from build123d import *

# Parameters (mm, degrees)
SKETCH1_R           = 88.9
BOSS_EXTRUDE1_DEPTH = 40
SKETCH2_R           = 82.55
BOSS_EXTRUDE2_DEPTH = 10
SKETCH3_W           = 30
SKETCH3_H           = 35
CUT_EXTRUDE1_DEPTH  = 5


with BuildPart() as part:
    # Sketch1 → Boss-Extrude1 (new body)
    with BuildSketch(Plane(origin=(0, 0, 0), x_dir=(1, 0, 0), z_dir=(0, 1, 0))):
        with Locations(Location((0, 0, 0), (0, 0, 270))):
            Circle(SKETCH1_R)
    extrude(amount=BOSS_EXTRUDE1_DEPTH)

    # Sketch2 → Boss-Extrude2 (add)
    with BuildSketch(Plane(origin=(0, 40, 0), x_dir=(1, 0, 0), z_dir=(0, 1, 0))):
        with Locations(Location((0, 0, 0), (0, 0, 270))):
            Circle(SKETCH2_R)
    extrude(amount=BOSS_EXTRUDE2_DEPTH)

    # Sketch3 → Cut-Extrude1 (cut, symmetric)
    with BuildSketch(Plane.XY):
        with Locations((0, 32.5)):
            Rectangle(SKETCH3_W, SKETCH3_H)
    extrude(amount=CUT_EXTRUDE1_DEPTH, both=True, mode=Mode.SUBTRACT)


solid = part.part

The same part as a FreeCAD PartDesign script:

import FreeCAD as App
import Part
import Sketcher

V = App.Vector
Q = App.Units.Quantity

doc = App.newDocument("Part")
params = doc.addObject("Spreadsheet::Sheet", "Params")
for row, (alias, value) in enumerate([
    ("sketch1_diameter", "177.8 mm"),
    ("pad1_length", "40 mm"),
    ("sketch2_diameter", "165.1 mm"),
    ("pad2_length", "10 mm"),
    ("sketch3_width", "30 mm"),
    ("sketch3_height", "35 mm"),
    ("pocket1_length", "10 mm"),
], start=1):
    params.set(f"A{row}", alias)
    params.set(f"B{row}", "=" + value)
    params.setAlias(f"B{row}", alias)

body = doc.addObject("PartDesign::Body", "Body")

sketch1 = doc.addObject("Sketcher::SketchObject", "Sketch")
body.addObject(sketch1)
sketch1.AttachmentSupport = (doc.XZ_Plane, [""])
sketch1.MapMode = "FlatFace"
sketch1.addGeometry(Part.Circle(V(0, 0, 0), V(0, 0, 1), 89), False)
sketch1.addConstraint([
    Sketcher.Constraint("Coincident", 0, 3, -1, 1),
    Sketcher.Constraint("Diameter", 0, Q("177.8 mm")),
])
sketch1.setExpression("Constraints[1]", "Params.sketch1_diameter")
pad1 = doc.addObject("PartDesign::Pad", "Pad")
body.addObject(pad1)
pad1.Profile = sketch1
pad1.setExpression("Length", "Params.pad1_length")
pad1.Reversed = True

sketch2 = doc.addObject("Sketcher::SketchObject", "Sketch001")
body.addObject(sketch2)
sketch2.AttachmentSupport = (doc.XZ_Plane, [""])
sketch2.MapMode = "FlatFace"
sketch2.AttachmentOffset = App.Placement(V(0, 0, -40), App.Rotation())
sketch2.addGeometry(Part.Circle(V(0, 0, 0), V(0, 0, 1), 83), False)
sketch2.addConstraint([
    Sketcher.Constraint("Coincident", 0, 3, -1, 1),
    Sketcher.Constraint("Diameter", 0, Q("165.1 mm")),
])
sketch2.setExpression("Constraints[1]", "Params.sketch2_diameter")
pad2 = doc.addObject("PartDesign::Pad", "Pad001")
body.addObject(pad2)
pad2.Profile = sketch2
pad2.setExpression("Length", "Params.pad2_length")
pad2.Reversed = True

sketch3 = doc.addObject("Sketcher::SketchObject", "Sketch002")
body.addObject(sketch3)
sketch3.AttachmentSupport = (doc.XY_Plane, [""])
sketch3.MapMode = "FlatFace"
sketch3.addGeometry([
    Part.LineSegment(V(-15, 50, 0), V(-15, 15, 0)),
    Part.LineSegment(V(-15, 15, 0), V(15, 15, 0)),
    Part.LineSegment(V(15, 15, 0), V(15, 50, 0)),
    Part.LineSegment(V(15, 50, 0), V(-15, 50, 0)),
], False)
sketch3.addConstraint([
    Sketcher.Constraint("Coincident", 0, 2, 1, 1),
    Sketcher.Constraint("Coincident", 1, 2, 2, 1),
    Sketcher.Constraint("Coincident", 2, 2, 3, 1),
    Sketcher.Constraint("Coincident", 3, 2, 0, 1),
    Sketcher.Constraint("Vertical", 0),
    Sketcher.Constraint("Horizontal", 1),
    Sketcher.Constraint("Vertical", 2),
    Sketcher.Constraint("Horizontal", 3),
    Sketcher.Constraint("DistanceX", 1, 1, 1, 2, Q("30 mm")),
    Sketcher.Constraint("DistanceY", 0, 2, 0, 1, Q("35 mm")),
    Sketcher.Constraint("DistanceX", 0, 2, -1, 1, Q("15 mm")),
    Sketcher.Constraint("DistanceY", -1, 1, 0, 2, Q("15 mm")),
])
sketch3.setExpression("Constraints[8]", "Params.sketch3_width")
sketch3.setExpression("Constraints[9]", "Params.sketch3_height")
pocket1 = doc.addObject("PartDesign::Pocket", "Pocket")
body.addObject(pocket1)
pocket1.Profile = sketch3
pocket1.setExpression("Length", "Params.pocket1_length")
pocket1.Midplane = True

doc.recompute()
